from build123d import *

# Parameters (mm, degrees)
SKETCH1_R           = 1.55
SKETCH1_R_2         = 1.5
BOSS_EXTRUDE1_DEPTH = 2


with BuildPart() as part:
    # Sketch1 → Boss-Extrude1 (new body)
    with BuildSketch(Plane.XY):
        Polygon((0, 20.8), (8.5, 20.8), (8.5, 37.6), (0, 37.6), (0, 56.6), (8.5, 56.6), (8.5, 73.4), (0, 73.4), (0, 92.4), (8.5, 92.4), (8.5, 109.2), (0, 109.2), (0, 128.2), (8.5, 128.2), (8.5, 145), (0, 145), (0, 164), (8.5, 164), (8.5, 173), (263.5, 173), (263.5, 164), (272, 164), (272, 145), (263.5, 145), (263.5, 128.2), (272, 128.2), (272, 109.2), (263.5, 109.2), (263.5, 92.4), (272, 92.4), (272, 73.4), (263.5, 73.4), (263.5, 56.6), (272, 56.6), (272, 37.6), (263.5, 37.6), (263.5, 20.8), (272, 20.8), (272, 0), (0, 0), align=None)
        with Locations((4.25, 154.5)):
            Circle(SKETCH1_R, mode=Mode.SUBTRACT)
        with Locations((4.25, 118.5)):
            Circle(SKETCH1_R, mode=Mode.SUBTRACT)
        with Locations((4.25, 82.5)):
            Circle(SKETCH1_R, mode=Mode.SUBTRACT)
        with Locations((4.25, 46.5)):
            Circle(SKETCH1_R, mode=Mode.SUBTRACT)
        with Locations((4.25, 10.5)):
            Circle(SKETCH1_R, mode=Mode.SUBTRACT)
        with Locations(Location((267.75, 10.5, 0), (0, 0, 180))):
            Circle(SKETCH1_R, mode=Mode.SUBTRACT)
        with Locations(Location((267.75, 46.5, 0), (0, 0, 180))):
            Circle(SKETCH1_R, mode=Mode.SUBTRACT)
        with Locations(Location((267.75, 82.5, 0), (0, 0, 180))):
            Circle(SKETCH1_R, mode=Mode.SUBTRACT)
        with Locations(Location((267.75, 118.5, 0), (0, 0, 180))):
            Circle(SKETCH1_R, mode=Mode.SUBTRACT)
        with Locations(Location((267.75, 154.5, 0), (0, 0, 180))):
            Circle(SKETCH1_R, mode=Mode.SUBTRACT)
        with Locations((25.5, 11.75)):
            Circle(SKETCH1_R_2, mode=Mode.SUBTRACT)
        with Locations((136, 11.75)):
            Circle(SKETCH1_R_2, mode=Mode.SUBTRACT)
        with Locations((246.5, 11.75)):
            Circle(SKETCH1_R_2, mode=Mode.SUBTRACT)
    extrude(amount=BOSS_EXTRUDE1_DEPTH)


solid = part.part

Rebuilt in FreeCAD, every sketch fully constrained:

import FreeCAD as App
import Part
import Sketcher
Q = App.Units.Quantity

doc = App.newDocument("Part")
body = doc.addObject("PartDesign::Body", "Body")

# Sketch on XY plane
sketch1 = body.newObject("Sketcher::SketchObject", "Sketch")
sketch1.AttachmentSupport = (doc.getObject("XY_Plane"), [""])
sketch1.MapMode = "FlatFace"
sketch1.addGeometry(Part.LineSegment(App.Vector(8.5, 20.8, 0), App.Vector(0, 20.8, 0)), False)
sketch1.addGeometry(Part.LineSegment(App.Vector(0, 20.8, 0), App.Vector(0, 0, 0)), False)
sketch1.addGeometry(Part.LineSegment(App.Vector(0, 0, 0), App.Vector(272, 0, 0)), False)
sketch1.addGeometry(Part.LineSegment(App.Vector(272, 0, 0), App.Vector(272, 20.8, 0)), False)
sketch1.addGeometry(Part.LineSegment(App.Vector(272, 20.8, 0), App.Vector(263.5, 20.8, 0)), False)
sketch1.addGeometry(Part.LineSegment(App.Vector(263.5, 20.8, 0), App.Vector(263.5, 37.6, 0)), False)
sketch1.addGeometry(Part.LineSegment(App.Vector(263.5, 37.6, 0), App.Vector(272, 37.6, 0)), False)
sketch1.addGeometry(Part.LineSegment(App.Vector(272, 37.6, 0), App.Vector(272, 56.6, 0)), False)
sketch1.addGeometry(Part.LineSegment(App.Vector(272, 56.6, 0), App.Vector(263.5, 56.6, 0)), False)
sketch1.addGeometry(Part.LineSegment(App.Vector(263.5, 56.6, 0), App.Vector(263.5, 73.4, 0)), False)
sketch1.addGeometry(Part.LineSegment(App.Vector(263.5, 73.4, 0), App.Vector(272, 73.4, 0)), False)
sketch1.addGeometry(Part.LineSegment(App.Vector(272, 73.4, 0), App.Vector(272, 92.4, 0)), False)
sketch1.addGeometry(Part.LineSegment(App.Vector(272, 92.4, 0), App.Vector(263.5, 92.4, 0)), False)
sketch1.addGeometry(Part.LineSegment(App.Vector(263.5, 92.4, 0), App.Vector(263.5, 109.2, 0)), False)
sketch1.addGeometry(Part.LineSegment(App.Vector(263.5, 109.2, 0), App.Vector(272, 109.2, 0)), False)
sketch1.addGeometry(Part.LineSegment(App.Vector(272, 109.2, 0), App.Vector(272, 128.2, 0)), False)
sketch1.addGeometry(Part.LineSegment(App.Vector(272, 128.2, 0), App.Vector(263.5, 128.2, 0)), False)
sketch1.addGeometry(Part.LineSegment(App.Vector(263.5, 128.2, 0), App.Vector(263.5, 145, 0)), False)
sketch1.addGeometry(Part.LineSegment(App.Vector(263.5, 145, 0), App.Vector(272, 145, 0)), False)
sketch1.addGeometry(Part.LineSegment(App.Vector(272, 145, 0), App.Vector(272, 164, 0)), False)
sketch1.addGeometry(Part.LineSegment(App.Vector(272, 164, 0), App.Vector(263.5, 164, 0)), False)
sketch1.addGeometry(Part.LineSegment(App.Vector(263.5, 164, 0), App.Vector(263.5, 173, 0)), False)
sketch1.addGeometry(Part.LineSegment(App.Vector(263.5, 173, 0), App.Vector(8.5, 173, 0)), False)
sketch1.addGeometry(Part.LineSegment(App.Vector(8.5, 173, 0), App.Vector(8.5, 164, 0)), False)
sketch1.addGeometry(Part.LineSegment(App.Vector(8.5, 164, 0), App.Vector(0, 164, 0)), False)
sketch1.addGeometry(Part.LineSegment(App.Vector(0, 164, 0), App.Vector(0, 145, 0)), False)
sketch1.addGeometry(Part.LineSegment(App.Vector(0, 145, 0), App.Vector(8.5, 145, 0)), False)
sketch1.addGeometry(Part.LineSegment(App.Vector(8.5, 145, 0), App.Vector(8.5, 128.2, 0)), False)
sketch1.addGeometry(Part.LineSegment(App.Vector(8.5, 128.2, 0), App.Vector(0, 128.2, 0)), False)
sketch1.addGeometry(Part.LineSegment(App.Vector(0, 128.2, 0), App.Vector(0, 109.2, 0)), False)
sketch1.addGeometry(Part.LineSegment(App.Vector(0, 109.2, 0), App.Vector(8.5, 109.2, 0)), False)
sketch1.addGeometry(Part.LineSegment(App.Vector(8.5, 109.2, 0), App.Vector(8.5, 92.4, 0)), False)
sketch1.addGeometry(Part.LineSegment(App.Vector(8.5, 92.4, 0), App.Vector(0, 92.4, 0)), False)
sketch1.addGeometry(Part.LineSegment(App.Vector(0, 92.4, 0), App.Vector(0, 73.4, 0)), False)
sketch1.addGeometry(Part.LineSegment(App.Vector(0, 73.4, 0), App.Vector(8.5, 73.4, 0)), False)
sketch1.addGeometry(Part.LineSegment(App.Vector(8.5, 73.4, 0), App.Vector(8.5, 56.6, 0)), False)
sketch1.addGeometry(Part.LineSegment(App.Vector(8.5, 56.6, 0), App.Vector(0, 56.6, 0)), False)
sketch1.addGeometry(Part.LineSegment(App.Vector(0, 56.6, 0), App.Vector(0, 37.6, 0)), False)
sketch1.addGeometry(Part.LineSegment(App.Vector(0, 37.6, 0), App.Vector(8.5, 37.6, 0)), False)
sketch1.addGeometry(Part.LineSegment(App.Vector(8.5, 37.6, 0), App.Vector(8.5, 20.8, 0)), False)
sketch1.addGeometry(Part.Circle(App.Vector(267.8, 10.5, 0), App.Vector(0, 0, 1), 1.6), False)
sketch1.addGeometry(Part.Circle(App.Vector(246.5, 11.8, 0), App.Vector(0, 0, 1), 1.5), False)
sketch1.addGeometry(Part.Circle(App.Vector(267.8, 46.5, 0), App.Vector(0, 0, 1), 1.6), False)
sketch1.addGeometry(Part.Circle(App.Vector(136, 11.8, 0), App.Vector(0, 0, 1), 1.5), False)
sketch1.addGeometry(Part.Circle(App.Vector(25.5, 11.8, 0), App.Vector(0, 0, 1), 1.5), False)
sketch1.addGeometry(Part.Circle(App.Vector(4.2, 10.5, 0), App.Vector(0, 0, 1), 1.6), False)
sketch1.addGeometry(Part.Circle(App.Vector(4.2, 46.5, 0), App.Vector(0, 0, 1), 1.6), False)
sketch1.addGeometry(Part.Circle(App.Vector(267.8, 82.5, 0), App.Vector(0, 0, 1), 1.6), False)
sketch1.addGeometry(Part.Circle(App.Vector(267.8, 118.5, 0), App.Vector(0, 0, 1), 1.6), False)
sketch1.addGeometry(Part.Circle(App.Vector(267.8, 154.5, 0), App.Vector(0, 0, 1), 1.6), False)
sketch1.addGeometry(Part.Circle(App.Vector(4.2, 82.5, 0), App.Vector(0, 0, 1), 1.6), False)
sketch1.addGeometry(Part.Circle(App.Vector(4.2, 118.5, 0), App.Vector(0, 0, 1), 1.6), False)
sketch1.addGeometry(Part.Circle(App.Vector(4.2, 154.5, 0), App.Vector(0, 0, 1), 1.6), False)
sketch1.addConstraint(Sketcher.Constraint("Coincident", 0, 2, 1, 1))
sketch1.addConstraint(Sketcher.Constraint("Coincident", 1, 2, 2, 1))
sketch1.addConstraint(Sketcher.Constraint("Coincident", 2, 2, 3, 1))
sketch1.addConstraint(Sketcher.Constraint("Coincident", 3, 2, 4, 1))
sketch1.addConstraint(Sketcher.Constraint("Coincident", 4, 2, 5, 1))
sketch1.addConstraint(Sketcher.Constraint("Coincident", 5, 2, 6, 1))
sketch1.addConstraint(Sketcher.Constraint("Coincident", 6, 2, 7, 1))
sketch1.addConstraint(Sketcher.Constraint("Coincident", 7, 2, 8, 1))
sketch1.addConstraint(Sketcher.Constraint("Coincident", 8, 2, 9, 1))
sketch1.addConstraint(Sketcher.Constraint("Coincident", 9, 2, 10, 1))
sketch1.addConstraint(Sketcher.Constraint("Coincident", 10, 2, 11, 1))
sketch1.addConstraint(Sketcher.Constraint("Coincident", 11, 2, 12, 1))
sketch1.addConstraint(Sketcher.Constraint("Coincident", 12, 2, 13, 1))
sketch1.addConstraint(Sketcher.Constraint("Coincident", 13, 2, 14, 1))
sketch1.addConstraint(Sketcher.Constraint("Coincident", 14, 2, 15, 1))
sketch1.addConstraint(Sketcher.Constraint("Coincident", 15, 2, 16, 1))
sketch1.addConstraint(Sketcher.Constraint("Coincident", 16, 2, 17, 1))
sketch1.addConstraint(Sketcher.Constraint("Coincident", 17, 2, 18, 1))
sketch1.addConstraint(Sketcher.Constraint("Coincident", 18, 2, 19, 1))
sketch1.addConstraint(Sketcher.Constraint("Coincident", 19, 2, 20, 1))
sketch1.addConstraint(Sketcher.Constraint("Coincident", 20, 2, 21, 1))
sketch1.addConstraint(Sketcher.Constraint("Coincident", 21, 2, 22, 1))
sketch1.addConstraint(Sketcher.Constraint("Coincident", 22, 2, 23, 1))
sketch1.addConstraint(Sketcher.Constraint("Coincident", 23, 2, 24, 1))
sketch1.addConstraint(Sketcher.Constraint("Coincident", 24, 2, 25, 1))
sketch1.addConstraint(Sketcher.Constraint("Coincident", 25, 2, 26, 1))
sketch1.addConstraint(Sketcher.Constraint("Coincident", 26, 2, 27, 1))
sketch1.addConstraint(Sketcher.Constraint("Coincident", 27, 2, 28, 1))
sketch1.addConstraint(Sketcher.Constraint("Coincident", 28, 2, 29, 1))
sketch1.addConstraint(Sketcher.Constraint("Coincident", 29, 2, 30, 1))
sketch1.addConstraint(Sketcher.Constraint("Coincident", 30, 2, 31, 1))
sketch1.addConstraint(Sketcher.Constraint("Coincident", 31, 2, 32, 1))
sketch1.addConstraint(Sketcher.Constraint("Coincident", 32, 2, 33, 1))
sketch1.addConstraint(Sketcher.Constraint("Coincident", 33, 2, 34, 1))
sketch1.addConstraint(Sketcher.Constraint("Coincident", 34, 2, 35, 1))
sketch1.addConstraint(Sketcher.Constraint("Coincident", 35, 2, 36, 1))
sketch1.addConstraint(Sketcher.Constraint("Coincident", 36, 2, 37, 1))
sketch1.addConstraint(Sketcher.Constraint("Coincident", 37, 2, 38, 1))
sketch1.addConstraint(Sketcher.Constraint("Coincident", 38, 2, 39, 1))
sketch1.addConstraint(Sketcher.Constraint("Coincident", 39, 2, 0, 1))
sketch1.addConstraint(Sketcher.Constraint("Horizontal", 0))
sketch1.addConstraint(Sketcher.Constraint("Vertical", 1))
sketch1.addConstraint(Sketcher.Constraint("Horizontal", 2))
sketch1.addConstraint(Sketcher.Constraint("Vertical", 3))
sketch1.addConstraint(Sketcher.Constraint("Horizontal", 4))
sketch1.addConstraint(Sketcher.Constraint("Vertical", 5))
sketch1.addConstraint(Sketcher.Constraint("Horizontal", 6))
sketch1.addConstraint(Sketcher.Constraint("Vertical", 7))
sketch1.addConstraint(Sketcher.Constraint("Horizontal", 8))
sketch1.addConstraint(Sketcher.Constraint("Vertical", 9))
sketch1.addConstraint(Sketcher.Constraint("Horizontal", 10))
sketch1.addConstraint(Sketcher.Constraint("Vertical", 11))
sketch1.addConstraint(Sketcher.Constraint("Horizontal", 12))
sketch1.addConstraint(Sketcher.Constraint("Vertical", 13))
sketch1.addConstraint(Sketcher.Constraint("Horizontal", 14))
sketch1.addConstraint(Sketcher.Constraint("Vertical", 15))
sketch1.addConstraint(Sketcher.Constraint("Horizontal", 16))
sketch1.addConstraint(Sketcher.Constraint("Vertical", 17))
sketch1.addConstraint(Sketcher.Constraint("Horizontal", 18))
sketch1.addConstraint(Sketcher.Constraint("Vertical", 19))
sketch1.addConstraint(Sketcher.Constraint("Horizontal", 20))
sketch1.addConstraint(Sketcher.Constraint("Vertical", 21))
sketch1.addConstraint(Sketcher.Constraint("Horizontal", 22))
sketch1.addConstraint(Sketcher.Constraint("Vertical", 23))
sketch1.addConstraint(Sketcher.Constraint("Horizontal", 24))
sketch1.addConstraint(Sketcher.Constraint("Vertical", 25))
sketch1.addConstraint(Sketcher.Constraint("Horizontal", 26))
sketch1.addConstraint(Sketcher.Constraint("Vertical", 27))
sketch1.addConstraint(Sketcher.Constraint("Horizontal", 28))
sketch1.addConstraint(Sketcher.Constraint("Vertical", 29))
sketch1.addConstraint(Sketcher.Constraint("Horizontal", 30))
sketch1.addConstraint(Sketcher.Constraint("Vertical", 31))
sketch1.addConstraint(Sketcher.Constraint("Horizontal", 32))
sketch1.addConstraint(Sketcher.Constraint("Vertical", 33))
sketch1.addConstraint(Sketcher.Constraint("Horizontal", 34))
sketch1.addConstraint(Sketcher.Constraint("Vertical", 35))
sketch1.addConstraint(Sketcher.Constraint("Horizontal", 36))
sketch1.addConstraint(Sketcher.Constraint("Vertical", 37))
sketch1.addConstraint(Sketcher.Constraint("Horizontal", 38))
sketch1.addConstraint(Sketcher.Constraint("Vertical", 39))
sketch1.addConstraint(Sketcher.Constraint("Coincident", 1, 2, -1, 1))
sketch1.addConstraint(Sketcher.Constraint("Equal", 40, 42))
sketch1.addConstraint(Sketcher.Constraint("Equal", 41, 43))
sketch1.addConstraint(Sketcher.Constraint("Equal", 43, 44))
sketch1.addConstraint(Sketcher.Constraint("Equal", 42, 45))
sketch1.addConstraint(Sketcher.Constraint("Equal", 45, 46))
sketch1.addConstraint(Sketcher.Constraint("Equal", 46, 47))
sketch1.addConstraint(Sketcher.Constraint("Equal", 47, 48))
sketch1.addConstraint(Sketcher.Constraint("Equal", 48, 49))
sketch1.addConstraint(Sketcher.Constraint("Equal", 49, 50))
sketch1.addConstraint(Sketcher.Constraint("Equal", 50, 51))
sketch1.addConstraint(Sketcher.Constraint("Equal", 51, 52))
sketch1.addConstraint(Sketcher.Constraint("PointOnObject", 24, 2, -2))
sketch1.addConstraint(Sketcher.Constraint("PointOnObject", 28, 2, -2))
sketch1.addConstraint(Sketcher.Constraint("PointOnObject", 32, 2, -2))
sketch1.addConstraint(Sketcher.Constraint("PointOnObject", 36, 2, -2))
sketch1.addConstraint(Sketcher.Constraint("Horizontal", 41, 3, 43, 3))
sketch1.addConstraint(Sketcher.Constraint("Horizontal", 43, 3, 44, 3))
sketch1.addConstraint(Sketcher.Constraint("Horizontal", 40, 3, 45, 3))
sketch1.addConstraint(Sketcher.Constraint("Horizontal", 42, 3, 46, 3))
sketch1.addConstraint(Sketcher.Constraint("Horizontal", 47, 3, 50, 3))
sketch1.addConstraint(Sketcher.Constraint("Horizontal", 48, 3, 51, 3))
sketch1.addConstraint(Sketcher.Constraint("Horizontal", 49, 3, 52, 3))
sketch1.addConstraint(Sketcher.Constraint("Horizontal", 0, 2, 3, 2))
sketch1.addConstraint(Sketcher.Constraint("Horizontal", 20, 2, 23, 2))
sketch1.addConstraint(Sketcher.Constraint("Horizontal", 18, 2, 25, 2))
sketch1.addConstraint(Sketcher.Constraint("Horizontal", 16, 2, 27, 2))
sketch1.addConstraint(Sketcher.Constraint("Horizontal", 14, 2, 29, 2))
sketch1.addConstraint(Sketcher.Constraint("Horizontal", 12, 2, 31, 2))
sketch1.addConstraint(Sketcher.Constraint("Horizontal", 10, 2, 33, 2))
sketch1.addConstraint(Sketcher.Constraint("Horizontal", 8, 2, 35, 2))
sketch1.addConstraint(Sketcher.Constraint("Horizontal", 6, 2, 37, 2))
sketch1.addConstraint(Sketcher.Constraint("Vertical", 40, 3, 42, 3))
sketch1.addConstraint(Sketcher.Constraint("Vertical", 45, 3, 46, 3))
sketch1.addConstraint(Sketcher.Constraint("Vertical", 42, 3, 47, 3))
sketch1.addConstraint(Sketcher.Constraint("Vertical", 47, 3, 48, 3))
sketch1.addConstraint(Sketcher.Constraint("Vertical", 48, 3, 49, 3))
sketch1.addConstraint(Sketcher.Constraint("Vertical", 46, 3, 50, 3))
sketch1.addConstraint(Sketcher.Constraint("Vertical", 50, 3, 51, 3))
sketch1.addConstraint(Sketcher.Constraint("Vertical", 51, 3, 52, 3))
sketch1.addConstraint(Sketcher.Constraint("Vertical", 3, 2, 6, 2))
sketch1.addConstraint(Sketcher.Constraint("Vertical", 5, 2, 8, 2))
sketch1.addConstraint(Sketcher.Constraint("Vertical", 7, 2, 10, 2))
sketch1.addConstraint(Sketcher.Constraint("Vertical", 9, 2, 12, 2))
sketch1.addConstraint(Sketcher.Constraint("Vertical", 11, 2, 14, 2))
sketch1.addConstraint(Sketcher.Constraint("Vertical", 13, 2, 16, 2))
sketch1.addConstraint(Sketcher.Constraint("Vertical", 15, 2, 18, 2))
sketch1.addConstraint(Sketcher.Constraint("Vertical", 17, 2, 20, 2))
sketch1.addConstraint(Sketcher.Constraint("Vertical", 23, 2, 26, 2))
sketch1.addConstraint(Sketcher.Constraint("Vertical", 27, 2, 30, 2))
sketch1.addConstraint(Sketcher.Constraint("Vertical", 31, 2, 34, 2))
sketch1.addConstraint(Sketcher.Constraint("Vertical", 35, 2, 38, 2))
sketch1.addConstraint(Sketcher.Constraint("Equal", 0, 4))
sketch1.addConstraint(Sketcher.Constraint("Equal", 5, 9))
sketch1.addConstraint(Sketcher.Constraint("Equal", 7, 11))
sketch1.addConstraint(Sketcher.Constraint("Equal", 9, 13))
sketch1.addConstraint(Sketcher.Constraint("Equal", 11, 15))
sketch1.addConstraint(Sketcher.Constraint("Equal", 13, 17))
sketch1.addConstraint(Sketcher.Constraint("Equal", 15, 19))
sketch1.addConstraint(Sketcher.Constraint("Diameter", 41, Q("3 mm")))
sketch1.addConstraint(Sketcher.Constraint("Diameter", 40, Q("3.1 mm")))
sketch1.addConstraint(Sketcher.Constraint("DistanceX", 2, 1, 2, 2, Q("272 mm")))
sketch1.addConstraint(Sketcher.Constraint("DistanceX", 22, 2, 22, 1, Q("255 mm")))
sketch1.addConstraint(Sketcher.Constraint("DistanceY", 7, 1, 7, 2, Q("19 mm")))
sketch1.addConstraint(Sketcher.Constraint("DistanceY", 21, 1, 21, 2, Q("9 mm")))
sketch1.addConstraint(Sketcher.Constraint("DistanceY", 1, 2, 1, 1, Q("20.8 mm")))
sketch1.addConstraint(Sketcher.Constraint("DistanceY", 5, 1, 5, 2, Q("16.8 mm")))
sketch1.addConstraint(Sketcher.Constraint("DistanceX", -1, 1, 43, 3, Q("136 mm")))
sketch1.addConstraint(Sketcher.Constraint("DistanceY", 40, 3, 42, 3, Q("36 mm")))
sketch1.addConstraint(Sketcher.Constraint("DistanceX", 44, 3, 41, 3, Q("221 mm")))
sketch1.addConstraint(Sketcher.Constraint("DistanceY", 42, 3, 47, 3, Q("36 mm")))
sketch1.addConstraint(Sketcher.Constraint("DistanceY", 47, 3, 48, 3, Q("36 mm")))
sketch1.addConstraint(Sketcher.Constraint("DistanceY", 48, 3, 49, 3, Q("36 mm")))
sketch1.addConstraint(Sketcher.Constraint("DistanceX", 41, 3, 4, 2, Q("17 mm")))
sketch1.addConstraint(Sketcher.Constraint("DistanceY", -1, 1, 40, 3, Q("10.5 mm")))
sketch1.addConstraint(Sketcher.Constraint("DistanceX", 45, 3, 40, 3, Q("263.5 mm")))
sketch1.addConstraint(Sketcher.Constraint("DistanceX", -1, 1, 40, 3, Q("267.75 mm")))
sketch1.addConstraint(Sketcher.Constraint("DistanceY", -1, 1, 41, 3, Q("11.75 mm")))
pad1 = body.newObject("PartDesign::Pad", "Pad")
pad1.Profile = sketch1
pad1.Length = 2

doc.recompute()
